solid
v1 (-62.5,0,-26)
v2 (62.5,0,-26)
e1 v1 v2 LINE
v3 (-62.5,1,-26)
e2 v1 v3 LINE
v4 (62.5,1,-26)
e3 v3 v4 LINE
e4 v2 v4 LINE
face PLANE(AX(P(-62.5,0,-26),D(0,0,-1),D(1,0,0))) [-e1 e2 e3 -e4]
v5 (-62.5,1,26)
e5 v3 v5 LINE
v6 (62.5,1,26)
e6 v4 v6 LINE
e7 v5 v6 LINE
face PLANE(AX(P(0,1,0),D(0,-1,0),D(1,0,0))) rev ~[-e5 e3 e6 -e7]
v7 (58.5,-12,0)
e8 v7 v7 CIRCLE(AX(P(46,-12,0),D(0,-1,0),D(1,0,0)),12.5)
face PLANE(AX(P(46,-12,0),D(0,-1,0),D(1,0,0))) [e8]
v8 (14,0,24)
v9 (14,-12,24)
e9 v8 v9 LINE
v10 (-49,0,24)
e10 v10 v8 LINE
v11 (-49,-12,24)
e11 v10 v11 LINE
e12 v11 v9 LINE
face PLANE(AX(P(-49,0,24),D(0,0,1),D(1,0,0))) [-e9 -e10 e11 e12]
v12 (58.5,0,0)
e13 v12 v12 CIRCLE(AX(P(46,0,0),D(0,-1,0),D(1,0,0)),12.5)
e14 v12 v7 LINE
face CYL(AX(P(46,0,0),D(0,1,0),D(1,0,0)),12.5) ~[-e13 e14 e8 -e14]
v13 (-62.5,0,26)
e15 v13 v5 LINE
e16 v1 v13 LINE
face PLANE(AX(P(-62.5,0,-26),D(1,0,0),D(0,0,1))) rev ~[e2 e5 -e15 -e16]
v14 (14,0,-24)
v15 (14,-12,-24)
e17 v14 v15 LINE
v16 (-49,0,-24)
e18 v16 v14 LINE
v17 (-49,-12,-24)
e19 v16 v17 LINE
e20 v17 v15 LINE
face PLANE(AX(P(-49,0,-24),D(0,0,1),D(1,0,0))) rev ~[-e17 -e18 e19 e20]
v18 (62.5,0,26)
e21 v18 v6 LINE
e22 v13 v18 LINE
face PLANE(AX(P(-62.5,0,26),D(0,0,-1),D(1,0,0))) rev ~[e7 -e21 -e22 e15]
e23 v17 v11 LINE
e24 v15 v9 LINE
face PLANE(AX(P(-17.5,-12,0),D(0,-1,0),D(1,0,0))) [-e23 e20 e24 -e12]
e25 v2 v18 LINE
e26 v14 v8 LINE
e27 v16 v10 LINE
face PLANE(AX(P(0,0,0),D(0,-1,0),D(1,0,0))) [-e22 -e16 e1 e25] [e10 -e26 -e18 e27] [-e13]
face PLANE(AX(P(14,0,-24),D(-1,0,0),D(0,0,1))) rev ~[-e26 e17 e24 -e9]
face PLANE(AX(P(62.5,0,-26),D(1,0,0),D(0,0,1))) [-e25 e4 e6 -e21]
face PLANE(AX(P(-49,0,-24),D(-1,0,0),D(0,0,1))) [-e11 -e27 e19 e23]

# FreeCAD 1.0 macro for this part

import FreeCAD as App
import Part
import Sketcher
from FreeCAD import Vector
Q = App.Units.Quantity

doc = App.newDocument("Part")
body = doc.addObject("PartDesign::Body", "Body")

sketch1 = body.newObject("Sketcher::SketchObject", "Sketch")
sketch1.AttachmentSupport = (doc.getObject("XZ_Plane"), [""])
sketch1.MapMode = "FlatFace"
sketch1.addGeometry(Part.LineSegment(Vector(-62, 26, 0), Vector(-62, -26, 0)), False)
sketch1.addGeometry(Part.LineSegment(Vector(-62, -26, 0), Vector(62, -26, 0)), False)
sketch1.addGeometry(Part.LineSegment(Vector(62, -26, 0), Vector(62, 26, 0)), False)
sketch1.addGeometry(Part.LineSegment(Vector(62, 26, 0), Vector(-62, 26, 0)), False)
sketch1.addConstraint(Sketcher.Constraint("Coincident", 0, 2, 1, 1))
sketch1.addConstraint(Sketcher.Constraint("Coincident", 1, 2, 2, 1))
sketch1.addConstraint(Sketcher.Constraint("Coincident", 2, 2, 3, 1))
sketch1.addConstraint(Sketcher.Constraint("Coincident", 3, 2, 0, 1))
sketch1.addConstraint(Sketcher.Constraint("Vertical", 0))
sketch1.addConstraint(Sketcher.Constraint("Horizontal", 1))
sketch1.addConstraint(Sketcher.Constraint("Vertical", 2))
sketch1.addConstraint(Sketcher.Constraint("Horizontal", 3))
sketch1.addConstraint(Sketcher.Constraint("Symmetric", 0, 2, 2, 2, -1, 1))
sketch1.addConstraint(Sketcher.Constraint("DistanceX", 1, 1, 1, 2, Q("125 mm")))
sketch1.addConstraint(Sketcher.Constraint("DistanceY", 0, 2, 0, 1, Q("52 mm")))
pad1 = body.newObject("PartDesign::Pad", "Pad")
pad1.Profile = sketch1
pad1.Length = 1
pad1.Reversed = True

sketch2 = body.newObject("Sketcher::SketchObject", "Sketch001")
sketch2.AttachmentSupport = (doc.getObject("XZ_Plane"), [""])
sketch2.MapMode = "FlatFace"
sketch2.addGeometry(Part.LineSegment(Vector(-49, 24, 0), Vector(-49, -24, 0)), False)
sketch2.addGeometry(Part.LineSegment(Vector(-49, -24, 0), Vector(14, -24, 0)), False)
sketch2.addGeometry(Part.LineSegment(Vector(14, -24, 0), Vector(14, 24, 0)), False)
sketch2.addGeometry(Part.LineSegment(Vector(14, 24, 0), Vector(-49, 24, 0)), False)
sketch2.addGeometry(Part.Circle(Vector(46, 0, 0), Vector(0, 0, 1), 12), False)
sketch2.addConstraint(Sketcher.Constraint("Coincident", 0, 2, 1, 1))
sketch2.addConstraint(Sketcher.Constraint("Coincident", 1, 2, 2, 1))
sketch2.addConstraint(Sketcher.Constraint("Coincident", 2, 2, 3, 1))
sketch2.addConstraint(Sketcher.Constraint("Coincident", 3, 2, 0, 1))
sketch2.addConstraint(Sketcher.Constraint("Vertical", 0))
sketch2.addConstraint(Sketcher.Constraint("Horizontal", 1))
sketch2.addConstraint(Sketcher.Constraint("Vertical", 2))
sketch2.addConstraint(Sketcher.Constraint("Horizontal", 3))
sketch2.addConstraint(Sketcher.Constraint("PointOnObject", 4, 3, -1))
sketch2.addConstraint(Sketcher.Constraint("Diameter", 4, Q("25 mm")))
sketch2.addConstraint(Sketcher.Constraint("DistanceX", 1, 1, 1, 2, Q("63 mm")))
sketch2.addConstraint(Sketcher.Constraint("DistanceY", 0, 2, 0, 1, Q("48 mm")))
sketch2.addConstraint(Sketcher.Constraint("DistanceX", -1, 1, 4, 3, Q("46 mm")))
sketch2.addConstraint(Sketcher.Constraint("DistanceX", 0, 2, -1, 1, Q("49 mm")))
sketch2.addConstraint(Sketcher.Constraint("DistanceY", 0, 2, -1, 1, Q("24 mm")))
pad2 = body.newObject("PartDesign::Pad", "Pad001")
pad2.Profile = sketch2
pad2.Length = 12

doc.recompute()
